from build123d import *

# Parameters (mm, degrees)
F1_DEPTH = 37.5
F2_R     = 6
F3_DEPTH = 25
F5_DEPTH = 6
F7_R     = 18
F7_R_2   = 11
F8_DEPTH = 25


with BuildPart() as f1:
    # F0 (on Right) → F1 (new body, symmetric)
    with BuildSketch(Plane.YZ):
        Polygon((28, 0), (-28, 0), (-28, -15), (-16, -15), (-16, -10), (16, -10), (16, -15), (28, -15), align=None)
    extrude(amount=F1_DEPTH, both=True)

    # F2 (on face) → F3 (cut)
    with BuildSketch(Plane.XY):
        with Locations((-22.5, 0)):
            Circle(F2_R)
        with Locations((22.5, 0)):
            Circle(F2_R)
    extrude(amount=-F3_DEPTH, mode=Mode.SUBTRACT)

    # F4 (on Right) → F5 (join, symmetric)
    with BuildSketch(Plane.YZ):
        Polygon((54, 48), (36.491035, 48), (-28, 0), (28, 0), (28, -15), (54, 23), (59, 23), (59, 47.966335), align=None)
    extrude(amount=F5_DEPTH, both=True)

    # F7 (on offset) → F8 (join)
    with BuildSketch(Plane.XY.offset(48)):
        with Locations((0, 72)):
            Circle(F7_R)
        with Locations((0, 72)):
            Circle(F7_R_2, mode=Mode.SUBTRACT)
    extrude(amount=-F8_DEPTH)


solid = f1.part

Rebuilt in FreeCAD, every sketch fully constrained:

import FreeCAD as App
import Part
import Sketcher


def add_polygon(sketch, points):
    """Adds a closed chain of lines whose ends are joined by coincident constraints."""
    first, n = sketch.GeometryCount, len(points)
    for a, b in zip(points, points[1:] + points[:1]):
        sketch.addGeometry(Part.LineSegment(App.Vector(*a, 0), App.Vector(*b, 0)), False)
    for i in range(n):
        sketch.addConstraint(Sketcher.Constraint("Coincident", first + i, 2, first + (i + 1) % n, 1))

doc = App.newDocument("Part")
body = doc.addObject("PartDesign::Body", "Body")

sketch1 = body.newObject("Sketcher::SketchObject", "Sketch")
sketch1.AttachmentSupport = (doc.getObject("YZ_Plane"), [""])
sketch1.MapMode = "FlatFace"
add_polygon(sketch1, [(28, 0), (-28, 0), (-28, -15), (-16, -15), (-16, -10), (16, -10), (16, -15), (28, -15)])
sketch1.addConstraint([
    Sketcher.Constraint("Horizontal", 0),
    Sketcher.Constraint("Vertical", 1),
    Sketcher.Constraint("Horizontal", 2),
    Sketcher.Constraint("Vertical", 3),
    Sketcher.Constraint("Horizontal", 4),
    Sketcher.Constraint("Vertical", 5),
    Sketcher.Constraint("Horizontal", 6),
    Sketcher.Constraint("Vertical", 7),
    Sketcher.Constraint("Symmetric", 0, 2, 7, 2, -1, 1),
    Sketcher.Constraint("Symmetric", 2, 2, 5, 2, -2),
    Sketcher.Constraint("DistanceX", 0, 2, 0, 1, 56.0),
    Sketcher.Constraint("DistanceX", 2, 1, 2, 2, 12.0),
    Sketcher.Constraint("DistanceY", 1, 2, 1, 1, 15.0),
    Sketcher.Constraint("DistanceY", 3, 1, 3, 2, 5.0),
])
pad1 = body.newObject("PartDesign::Pad", "Pad")
pad1.Profile = sketch1
pad1.Length = 75
pad1.Midplane = True

sketch2 = body.newObject("Sketcher::SketchObject", "Sketch001")
sketch2.AttachmentSupport = (doc.getObject("XY_Plane"), [""])
sketch2.MapMode = "FlatFace"
sketch2.addGeometry([
    Part.Circle(App.Vector(-22, 0, 0), App.Vector(0, 0, 1), 6),
    Part.Circle(App.Vector(22, 0, 0), App.Vector(0, 0, 1), 6),
], False)
sketch2.addConstraint([
    Sketcher.Constraint("Equal", 0, 1),
    Sketcher.Constraint("Symmetric", 0, 3, 1, 3, -1, 1),
    Sketcher.Constraint("PointOnObject", 0, 3, -1),
    Sketcher.Constraint("Diameter", 0, 12.0),
    Sketcher.Constraint("DistanceX", 0, 3, 1, 3, 45.0),
])
pocket1 = body.newObject("PartDesign::Pocket", "Pocket")
pocket1.Profile = sketch2
pocket1.Length = 25

sketch3 = body.newObject("Sketcher::SketchObject", "Sketch002")
sketch3.AttachmentSupport = (doc.getObject("YZ_Plane"), [""])
sketch3.MapMode = "FlatFace"
add_polygon(sketch3, [(54, 48), (36, 48), (-28, 0), (28, 0), (28, -15), (54, 23), (59, 23), (59, 48)])
sketch3.addConstraint([
    Sketcher.Constraint("Horizontal", 0),
    Sketcher.Constraint("Horizontal", 2),
    Sketcher.Constraint("Vertical", 3),
    Sketcher.Constraint("Horizontal", 5),
    Sketcher.Constraint("Vertical", 6),
    Sketcher.Constraint("Symmetric", 1, 2, 2, 2, -1, 1),
    Sketcher.Constraint("Vertical", 4, 2, 7, 2),
    Sketcher.Constraint("DistanceX", 2, 1, 2, 2, 56.0),
    Sketcher.Constraint("DistanceX", 5, 1, 5, 2, 5.0),
    Sketcher.Constraint("DistanceY", 3, 2, 3, 1, 15.0),
    Sketcher.Constraint("DistanceY", -1, 1, 0, 2, 48.0),
    Sketcher.Constraint("DistanceX", -1, 1, 4, 2, 54.0),
    Sketcher.Constraint("DistanceY", -1, 1, 4, 2, 23.0),
    Sketcher.Constraint("DistanceX", 0, 2, 0, 1, 17.508965),
    Sketcher.Constraint("DistanceY", 6, 1, 6, 2, 24.966335),
])
pad2 = body.newObject("PartDesign::Pad", "Pad001")
pad2.Profile = sketch3
pad2.Length = 12
pad2.Midplane = True

sketch4 = body.newObject("Sketcher::SketchObject", "Sketch003")
sketch4.AttachmentSupport = (doc.getObject("XY_Plane"), [""])
sketch4.MapMode = "FlatFace"
sketch4.AttachmentOffset = App.Placement(App.Vector(0, 0, 48), App.Rotation())
sketch4.addGeometry([
    Part.Circle(App.Vector(0, 72, 0), App.Vector(0, 0, 1), 18),
    Part.Circle(App.Vector(0, 72, 0), App.Vector(0, 0, 1), 11),
], False)
sketch4.addConstraint([
    Sketcher.Constraint("Coincident", 1, 3, 0, 3),
    Sketcher.Constraint("PointOnObject", 0, 3, -2),
    Sketcher.Constraint("Diameter", 0, 36.0),
    Sketcher.Constraint("Diameter", 1, 22.0),
    Sketcher.Constraint("DistanceY", -1, 1, 0, 3, 72.0),
])
pad3 = body.newObject("PartDesign::Pad", "Pad002")
pad3.Profile = sketch4
pad3.Length = 25
pad3.Reversed = True

doc.recompute()
